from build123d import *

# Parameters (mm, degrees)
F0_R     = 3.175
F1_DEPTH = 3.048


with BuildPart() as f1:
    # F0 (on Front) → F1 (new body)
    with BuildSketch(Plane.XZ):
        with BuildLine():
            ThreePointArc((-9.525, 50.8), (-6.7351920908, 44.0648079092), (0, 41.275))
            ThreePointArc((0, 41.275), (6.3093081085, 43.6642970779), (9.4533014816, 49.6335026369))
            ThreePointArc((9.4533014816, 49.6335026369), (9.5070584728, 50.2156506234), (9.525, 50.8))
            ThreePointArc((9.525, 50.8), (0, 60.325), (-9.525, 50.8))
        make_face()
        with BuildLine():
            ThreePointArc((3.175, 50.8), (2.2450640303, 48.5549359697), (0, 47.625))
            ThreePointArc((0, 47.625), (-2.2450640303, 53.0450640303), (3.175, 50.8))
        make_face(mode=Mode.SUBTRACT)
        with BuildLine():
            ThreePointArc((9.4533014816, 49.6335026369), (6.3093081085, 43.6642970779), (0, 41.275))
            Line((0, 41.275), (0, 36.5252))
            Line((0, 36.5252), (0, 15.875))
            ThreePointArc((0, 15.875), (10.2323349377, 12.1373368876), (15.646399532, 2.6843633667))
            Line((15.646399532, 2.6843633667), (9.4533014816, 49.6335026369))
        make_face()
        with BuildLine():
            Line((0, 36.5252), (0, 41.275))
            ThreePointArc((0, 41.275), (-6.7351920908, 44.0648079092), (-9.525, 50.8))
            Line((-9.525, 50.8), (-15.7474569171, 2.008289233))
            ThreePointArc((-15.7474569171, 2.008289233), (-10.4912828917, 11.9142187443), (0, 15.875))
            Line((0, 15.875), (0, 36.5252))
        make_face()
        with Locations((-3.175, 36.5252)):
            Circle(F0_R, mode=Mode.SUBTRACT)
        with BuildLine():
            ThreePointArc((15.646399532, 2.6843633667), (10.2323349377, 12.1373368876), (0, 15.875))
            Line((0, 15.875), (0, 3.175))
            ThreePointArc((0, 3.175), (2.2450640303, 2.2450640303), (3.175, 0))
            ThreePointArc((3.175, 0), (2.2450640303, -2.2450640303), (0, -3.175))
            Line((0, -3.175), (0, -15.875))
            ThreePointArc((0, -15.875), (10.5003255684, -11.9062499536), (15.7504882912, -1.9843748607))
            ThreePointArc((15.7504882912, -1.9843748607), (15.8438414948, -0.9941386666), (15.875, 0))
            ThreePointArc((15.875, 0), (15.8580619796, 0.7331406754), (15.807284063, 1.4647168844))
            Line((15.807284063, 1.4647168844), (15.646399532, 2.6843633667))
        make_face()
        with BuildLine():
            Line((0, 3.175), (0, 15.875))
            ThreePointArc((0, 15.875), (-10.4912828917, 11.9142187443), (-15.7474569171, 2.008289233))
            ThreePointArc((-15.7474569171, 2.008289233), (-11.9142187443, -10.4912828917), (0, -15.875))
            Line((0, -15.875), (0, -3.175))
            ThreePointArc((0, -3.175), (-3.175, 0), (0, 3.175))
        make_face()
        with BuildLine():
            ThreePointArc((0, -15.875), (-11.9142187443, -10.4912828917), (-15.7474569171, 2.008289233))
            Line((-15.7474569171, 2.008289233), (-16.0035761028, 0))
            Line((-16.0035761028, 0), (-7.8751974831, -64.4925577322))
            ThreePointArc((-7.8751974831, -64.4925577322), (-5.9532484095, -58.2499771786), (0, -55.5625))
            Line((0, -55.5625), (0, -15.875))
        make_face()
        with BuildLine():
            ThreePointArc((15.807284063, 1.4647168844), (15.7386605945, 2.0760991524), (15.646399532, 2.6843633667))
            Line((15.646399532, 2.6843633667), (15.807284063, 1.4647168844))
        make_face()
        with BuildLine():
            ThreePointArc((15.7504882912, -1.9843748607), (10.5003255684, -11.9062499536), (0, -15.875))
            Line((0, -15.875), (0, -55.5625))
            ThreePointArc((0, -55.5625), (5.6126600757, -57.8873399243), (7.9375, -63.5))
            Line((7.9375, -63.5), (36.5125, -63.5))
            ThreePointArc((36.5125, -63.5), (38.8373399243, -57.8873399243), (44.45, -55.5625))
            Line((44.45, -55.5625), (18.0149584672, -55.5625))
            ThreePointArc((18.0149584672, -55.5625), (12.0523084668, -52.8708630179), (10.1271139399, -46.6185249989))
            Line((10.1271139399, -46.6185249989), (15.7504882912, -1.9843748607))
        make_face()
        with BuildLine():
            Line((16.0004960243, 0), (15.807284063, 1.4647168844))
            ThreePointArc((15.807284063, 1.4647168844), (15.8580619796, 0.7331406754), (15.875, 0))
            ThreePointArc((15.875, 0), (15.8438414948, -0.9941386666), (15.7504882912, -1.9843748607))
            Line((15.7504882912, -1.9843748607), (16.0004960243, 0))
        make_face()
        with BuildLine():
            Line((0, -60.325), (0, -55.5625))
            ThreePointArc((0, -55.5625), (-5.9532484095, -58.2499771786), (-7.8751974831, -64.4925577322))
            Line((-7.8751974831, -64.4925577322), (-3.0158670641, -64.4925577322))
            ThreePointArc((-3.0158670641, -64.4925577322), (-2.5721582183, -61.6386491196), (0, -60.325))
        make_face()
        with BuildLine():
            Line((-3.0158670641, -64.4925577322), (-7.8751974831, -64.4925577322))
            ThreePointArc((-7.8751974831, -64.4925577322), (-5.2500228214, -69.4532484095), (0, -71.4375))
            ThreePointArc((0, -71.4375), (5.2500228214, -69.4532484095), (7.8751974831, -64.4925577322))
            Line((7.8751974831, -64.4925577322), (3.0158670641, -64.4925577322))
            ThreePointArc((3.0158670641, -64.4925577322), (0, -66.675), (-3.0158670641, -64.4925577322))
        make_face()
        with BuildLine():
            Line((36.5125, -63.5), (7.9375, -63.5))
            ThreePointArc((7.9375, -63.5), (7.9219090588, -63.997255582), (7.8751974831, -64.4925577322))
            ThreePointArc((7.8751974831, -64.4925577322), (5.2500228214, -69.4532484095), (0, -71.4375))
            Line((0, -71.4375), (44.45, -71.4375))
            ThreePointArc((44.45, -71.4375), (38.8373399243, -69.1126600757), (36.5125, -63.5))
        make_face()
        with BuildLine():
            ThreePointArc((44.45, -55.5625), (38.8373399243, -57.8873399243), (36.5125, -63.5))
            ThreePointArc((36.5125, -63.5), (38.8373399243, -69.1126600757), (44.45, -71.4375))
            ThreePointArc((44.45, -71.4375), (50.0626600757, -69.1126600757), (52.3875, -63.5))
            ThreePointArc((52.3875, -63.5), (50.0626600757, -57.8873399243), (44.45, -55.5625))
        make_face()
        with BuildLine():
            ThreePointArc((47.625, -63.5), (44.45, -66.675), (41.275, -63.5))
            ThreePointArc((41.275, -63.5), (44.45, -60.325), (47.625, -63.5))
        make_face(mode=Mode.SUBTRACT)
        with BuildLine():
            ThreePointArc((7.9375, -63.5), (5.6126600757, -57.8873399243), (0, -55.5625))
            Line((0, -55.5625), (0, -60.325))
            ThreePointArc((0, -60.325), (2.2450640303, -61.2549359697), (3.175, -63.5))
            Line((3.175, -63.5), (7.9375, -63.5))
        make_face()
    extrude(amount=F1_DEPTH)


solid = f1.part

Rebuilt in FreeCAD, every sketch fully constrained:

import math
import FreeCAD as App
import Part
import Sketcher
from FreeCAD import Vector
Q = App.Units.Quantity

doc = App.newDocument("Part")
params = doc.addObject("Spreadsheet::Sheet", "Params")
for row, (alias, value) in enumerate([
    ("sketch1_diameter", "0.25 in"),
    ("sketch1_radius", "0.375 in"),
    ("sketch1_radius2", "0.3125 in"),
    ("sketch1_radius3", "0.313 in"),
    ("sketch1_radius4", "0.625 in"),
    ("pad1_length", "0.12 in"),
], start=1):
    params.set(f"A{row}", alias)
    params.set(f"B{row}", "=" + value)
    params.setAlias(f"B{row}", alias)

body = doc.addObject("PartDesign::Body", "Body")

sketch1 = body.newObject("Sketcher::SketchObject", "Sketch")
sketch1.AttachmentSupport = (doc.getObject("XZ_Plane"), [""])
sketch1.MapMode = "FlatFace"
sketch1.addGeometry(Part.ArcOfCircle(Part.Circle(Vector(0, 50.8, 0), Vector(0, 0, 1), 9.5), math.radians(0), math.radians(180)), False)
sketch1.addGeometry(Part.LineSegment(Vector(-9.5, 50.8, 0), Vector(-15.7, 2, 0)), False)
sketch1.addGeometry(Part.LineSegment(Vector(-15.7, 2, 0), Vector(-16, 0, 0)), False)
sketch1.addGeometry(Part.LineSegment(Vector(-16, 0, 0), Vector(-7.9, -64.5, 0)), False)
sketch1.addGeometry(Part.ArcOfCircle(Part.Circle(Vector(0, -63.5, 0), Vector(0, 0, 1), 7.9), math.radians(-173), math.radians(-90)), False)
sketch1.addGeometry(Part.LineSegment(Vector(0, -71.4, 0), Vector(44.5, -71.4, 0)), False)
sketch1.addGeometry(Part.ArcOfCircle(Part.Circle(Vector(44.5, -63.5, 0), Vector(0, 0, 1), 7.9), math.radians(-90), math.radians(0)), False)
sketch1.addGeometry(Part.ArcOfCircle(Part.Circle(Vector(44.5, -63.5, 0), Vector(0, 0, 1), 7.9), math.radians(0), math.radians(90)), False)
sketch1.addGeometry(Part.LineSegment(Vector(44.5, -55.6, 0), Vector(18, -55.6, 0)), False)
sketch1.addGeometry(Part.ArcOfCircle(Part.Circle(Vector(18, -47.6, 0), Vector(0, 0, 1), 8), math.radians(173), math.radians(270)), False)
sketch1.addGeometry(Part.LineSegment(Vector(10.1, -46.6, 0), Vector(15.8, -2, 0)), False)
sketch1.addGeometry(Part.LineSegment(Vector(15.8, -2, 0), Vector(16, 0, 0)), False)
sketch1.addGeometry(Part.LineSegment(Vector(16, 0, 0), Vector(15.8, 1.5, 0)), False)
sketch1.addGeometry(Part.ArcOfCircle(Part.Circle(Vector(0, 0, 0), Vector(0, 0, 1), 15.9), math.radians(5.29), math.radians(9.74)), False)
sketch1.addGeometry(Part.LineSegment(Vector(15.6, 2.7, 0), Vector(9.5, 49.6, 0)), False)
sketch1.addGeometry(Part.ArcOfCircle(Part.Circle(Vector(0, 50.8, 0), Vector(0, 0, 1), 9.5), math.radians(-7.03), math.radians(0)), False)
sketch1.addGeometry(Part.LineSegment(Vector(7.9, -64.5, 0), Vector(3, -64.5, 0)), False)
sketch1.addGeometry(Part.ArcOfCircle(Part.Circle(Vector(0, -63.5, 0), Vector(0, 0, 1), 3.2), math.radians(-162), math.radians(-18)), False)
sketch1.addGeometry(Part.ArcOfCircle(Part.Circle(Vector(0, -63.5, 0), Vector(0, 0, 1), 3.2), math.radians(90), math.radians(198)), False)
sketch1.addGeometry(Part.ArcOfCircle(Part.Circle(Vector(0, -63.5, 0), Vector(0, 0, 1), 3.2), math.radians(0), math.radians(90)), False)
sketch1.addGeometry(Part.LineSegment(Vector(3.2, -63.5, 0), Vector(7.9, -63.5, 0)), False)
sketch1.addGeometry(Part.ArcOfCircle(Part.Circle(Vector(0, -63.5, 0), Vector(0, 0, 1), 7.9), math.radians(-7.18), math.radians(0)), False)
sketch1.addGeometry(Part.Circle(Vector(44.5, -63.5, 0), Vector(0, 0, 1), 3.2), False)
sketch1.addGeometry(Part.ArcOfCircle(Part.Circle(Vector(0, 0, 0), Vector(0, 0, 1), 3.2), math.radians(0), math.radians(90)), False)
sketch1.addGeometry(Part.ArcOfCircle(Part.Circle(Vector(0, 0, 0), Vector(0, 0, 1), 3.2), math.radians(-90), math.radians(0)), False)
sketch1.addGeometry(Part.ArcOfCircle(Part.Circle(Vector(0, 0, 0), Vector(0, 0, 1), 3.2), math.radians(90), math.radians(270)), False)
sketch1.addGeometry(Part.Circle(Vector(-3.2, 36.5, 0), Vector(0, 0, 1), 3.2), False)
sketch1.addGeometry(Part.ArcOfCircle(Part.Circle(Vector(0, 50.8, 0), Vector(0, 0, 1), 3.2), math.radians(0), math.radians(270)), False)
sketch1.addGeometry(Part.ArcOfCircle(Part.Circle(Vector(0, 50.8, 0), Vector(0, 0, 1), 3.2), math.radians(-90), math.radians(0)), False)
sketch1.addConstraint(Sketcher.Constraint("Coincident", 0, 2, 1, 1))
sketch1.addConstraint(Sketcher.Constraint("Coincident", 1, 2, 2, 1))
sketch1.addConstraint(Sketcher.Constraint("Coincident", 2, 2, 3, 1))
sketch1.addConstraint(Sketcher.Constraint("Tangent", 3, 2, 4, 1))
sketch1.addConstraint(Sketcher.Constraint("Tangent", 4, 2, 5, 1))
sketch1.addConstraint(Sketcher.Constraint("Tangent", 5, 2, 6, 1))
sketch1.addConstraint(Sketcher.Constraint("Tangent", 6, 2, 7, 1))
sketch1.addConstraint(Sketcher.Constraint("Tangent", 7, 2, 8, 1))
sketch1.addConstraint(Sketcher.Constraint("Tangent", 8, 2, 9, 2))
sketch1.addConstraint(Sketcher.Constraint("Tangent", 9, 1, 10, 1))
sketch1.addConstraint(Sketcher.Constraint("Coincident", 10, 2, 11, 1))
sketch1.addConstraint(Sketcher.Constraint("Coincident", 11, 2, 12, 1))
sketch1.addConstraint(Sketcher.Constraint("Coincident", 12, 2, 13, 1))
sketch1.addConstraint(Sketcher.Constraint("Coincident", 13, 2, 14, 1))
sketch1.addConstraint(Sketcher.Constraint("Coincident", 14, 2, 15, 1))
sketch1.addConstraint(Sketcher.Constraint("Tangent", 15, 2, 0, 1))
sketch1.addConstraint(Sketcher.Constraint("Coincident", 16, 2, 17, 2))
sketch1.addConstraint(Sketcher.Constraint("Tangent", 17, 1, 18, 2))
sketch1.addConstraint(Sketcher.Constraint("Tangent", 18, 1, 19, 2))
sketch1.addConstraint(Sketcher.Constraint("Coincident", 19, 1, 20, 1))
sketch1.addConstraint(Sketcher.Constraint("Coincident", 20, 2, 21, 2))
sketch1.addConstraint(Sketcher.Constraint("Coincident", 21, 1, 16, 1))
sketch1.addConstraint(Sketcher.Constraint("Tangent", 23, 1, 24, 2))
sketch1.addConstraint(Sketcher.Constraint("Tangent", 24, 1, 25, 2))
sketch1.addConstraint(Sketcher.Constraint("Tangent", 25, 1, 23, 2))
sketch1.addConstraint(Sketcher.Constraint("Tangent", 27, 1, 28, 2))
sketch1.addConstraint(Sketcher.Constraint("Coincident", 28, 1, 27, 2))
sketch1.addConstraint(Sketcher.Constraint("Horizontal", 5))
sketch1.addConstraint(Sketcher.Constraint("Horizontal", 8))
sketch1.addConstraint(Sketcher.Constraint("Horizontal", 16))
sketch1.addConstraint(Sketcher.Constraint("Horizontal", 20))
sketch1.addConstraint(Sketcher.Constraint("Coincident", 13, 3, -1, 1))
sketch1.addConstraint(Sketcher.Constraint("Coincident", 23, 3, -1, 1))
sketch1.addConstraint(Sketcher.Constraint("Coincident", 17, 3, 4, 3))
sketch1.addConstraint(Sketcher.Constraint("Coincident", 19, 3, 4, 3))
sketch1.addConstraint(Sketcher.Constraint("Coincident", 21, 3, 4, 3))
sketch1.addConstraint(Sketcher.Constraint("Coincident", 22, 3, 6, 3))
sketch1.addConstraint(Sketcher.Constraint("Coincident", 27, 3, 0, 3))
sketch1.addConstraint(Sketcher.Constraint("Equal", 4, 6))
sketch1.addConstraint(Sketcher.Constraint("Equal", 6, 7))
sketch1.addConstraint(Sketcher.Constraint("Equal", 0, 15))
sketch1.addConstraint(Sketcher.Constraint("Equal", 7, 21))
sketch1.addConstraint(Sketcher.Constraint("Equal", 19, 22))
sketch1.addConstraint(Sketcher.Constraint("Equal", 22, 23))
sketch1.addConstraint(Sketcher.Constraint("Equal", 25, 26))
sketch1.addConstraint(Sketcher.Constraint("Equal", 26, 27))
sketch1.addConstraint(Sketcher.Constraint("Symmetric", 0, 2, 15, 2, -2))
sketch1.addConstraint(Sketcher.Constraint("Symmetric", 16, 2, 17, 1, -2))
sketch1.addConstraint(Sketcher.Constraint("PointOnObject", 2, 2, -1))
sketch1.addConstraint(Sketcher.Constraint("PointOnObject", 11, 2, -1))
sketch1.addConstraint(Sketcher.Constraint("PointOnObject", 18, 1, -2))
sketch1.addConstraint(Sketcher.Constraint("PointOnObject", 23, 1, -1))
sketch1.addConstraint(Sketcher.Constraint("PointOnObject", 24, 1, -2))
sketch1.addConstraint(Sketcher.Constraint("PointOnObject", 25, 1, -2))
sketch1.addConstraint(Sketcher.Constraint("PointOnObject", 28, 1, -2))
sketch1.addConstraint(Sketcher.Constraint("Parallel", 1, 2))
sketch1.addConstraint(Sketcher.Constraint("Parallel", 10, 11))
sketch1.addConstraint(Sketcher.Constraint("Parallel", 12, 14))
sketch1.addConstraint(Sketcher.Constraint("Horizontal", 28, 3, 0, 2))
sketch1.addConstraint(Sketcher.Constraint("Horizontal", 22, 3, 6, 2))
sketch1.addConstraint(Sketcher.Constraint("Horizontal", 3, 2, 16, 2))
sketch1.addConstraint(Sketcher.Constraint("Horizontal", 6, 2, 19, 1))
sketch1.addConstraint(Sketcher.Constraint("Horizontal", 15, 2, 27, 1))
sketch1.addConstraint(Sketcher.Constraint("Diameter", 22, Q("0.25 in")))
sketch1.addConstraint(Sketcher.Constraint("DistanceY", -1, 1, 0, 3, Q("2 in")))
sketch1.addConstraint(Sketcher.Constraint("Radius", 0, Q("0.375 in")))
sketch1.addConstraint(Sketcher.Constraint("Radius", 4, Q("0.3125 in")))
sketch1.addConstraint(Sketcher.Constraint("Radius", 9, Q("0.313 in")))
sketch1.addConstraint(Sketcher.Constraint("Radius", 13, Q("0.625 in")))
sketch1.addConstraint(Sketcher.Constraint("DistanceX", 5, 1, 5, 2, Q("1.75 in")))
sketch1.addConstraint(Sketcher.Constraint("DistanceY", 4, 3, -1, 1, Q("2.5 in")))
sketch1.addConstraint(Sketcher.Constraint("DistanceX", 0, 2, 26, 3, Q("0.25 in")))
sketch1.addConstraint(Sketcher.Constraint("DistanceY", -1, 1, 26, 3, Q("1.438 in")))
sketch1.addConstraint(Sketcher.Constraint("DistanceY", 10, 2, -1, 1, Q("0.078125 in")))
sketch1.addConstraint(Sketcher.Constraint("DistanceX", -1, 1, 13, 2, Q("0.616 in")))
sketch1.addConstraint(Sketcher.Constraint("DistanceX", 8, 2, 8, 1, 26.435042))
sketch1.addConstraint(Sketcher.Constraint("DistanceX", 16, 2, 16, 1, 4.85933))
sketch1.addConstraint(Sketcher.Constraint("DistanceX", -1, 1, 14, 2, 9.453301))
sketch1.addConstraint(Sketcher.Constraint("Distance", 1, 49.186889))
sketch1.addConstraint(Sketcher.Constraint("DistanceX", -1, 1, 10, 2, 15.750488))
sketch1.setExpression("Constraints[63]", "Params.sketch1_diameter")
sketch1.setExpression("Constraints[65]", "Params.sketch1_radius")
sketch1.setExpression("Constraints[66]", "Params.sketch1_radius2")
sketch1.setExpression("Constraints[67]", "Params.sketch1_radius3")
sketch1.setExpression("Constraints[68]", "Params.sketch1_radius4")
pad1 = body.newObject("PartDesign::Pad", "Pad")
pad1.Profile = sketch1
pad1.setExpression("Length", "Params.pad1_length")

doc.recompute()
